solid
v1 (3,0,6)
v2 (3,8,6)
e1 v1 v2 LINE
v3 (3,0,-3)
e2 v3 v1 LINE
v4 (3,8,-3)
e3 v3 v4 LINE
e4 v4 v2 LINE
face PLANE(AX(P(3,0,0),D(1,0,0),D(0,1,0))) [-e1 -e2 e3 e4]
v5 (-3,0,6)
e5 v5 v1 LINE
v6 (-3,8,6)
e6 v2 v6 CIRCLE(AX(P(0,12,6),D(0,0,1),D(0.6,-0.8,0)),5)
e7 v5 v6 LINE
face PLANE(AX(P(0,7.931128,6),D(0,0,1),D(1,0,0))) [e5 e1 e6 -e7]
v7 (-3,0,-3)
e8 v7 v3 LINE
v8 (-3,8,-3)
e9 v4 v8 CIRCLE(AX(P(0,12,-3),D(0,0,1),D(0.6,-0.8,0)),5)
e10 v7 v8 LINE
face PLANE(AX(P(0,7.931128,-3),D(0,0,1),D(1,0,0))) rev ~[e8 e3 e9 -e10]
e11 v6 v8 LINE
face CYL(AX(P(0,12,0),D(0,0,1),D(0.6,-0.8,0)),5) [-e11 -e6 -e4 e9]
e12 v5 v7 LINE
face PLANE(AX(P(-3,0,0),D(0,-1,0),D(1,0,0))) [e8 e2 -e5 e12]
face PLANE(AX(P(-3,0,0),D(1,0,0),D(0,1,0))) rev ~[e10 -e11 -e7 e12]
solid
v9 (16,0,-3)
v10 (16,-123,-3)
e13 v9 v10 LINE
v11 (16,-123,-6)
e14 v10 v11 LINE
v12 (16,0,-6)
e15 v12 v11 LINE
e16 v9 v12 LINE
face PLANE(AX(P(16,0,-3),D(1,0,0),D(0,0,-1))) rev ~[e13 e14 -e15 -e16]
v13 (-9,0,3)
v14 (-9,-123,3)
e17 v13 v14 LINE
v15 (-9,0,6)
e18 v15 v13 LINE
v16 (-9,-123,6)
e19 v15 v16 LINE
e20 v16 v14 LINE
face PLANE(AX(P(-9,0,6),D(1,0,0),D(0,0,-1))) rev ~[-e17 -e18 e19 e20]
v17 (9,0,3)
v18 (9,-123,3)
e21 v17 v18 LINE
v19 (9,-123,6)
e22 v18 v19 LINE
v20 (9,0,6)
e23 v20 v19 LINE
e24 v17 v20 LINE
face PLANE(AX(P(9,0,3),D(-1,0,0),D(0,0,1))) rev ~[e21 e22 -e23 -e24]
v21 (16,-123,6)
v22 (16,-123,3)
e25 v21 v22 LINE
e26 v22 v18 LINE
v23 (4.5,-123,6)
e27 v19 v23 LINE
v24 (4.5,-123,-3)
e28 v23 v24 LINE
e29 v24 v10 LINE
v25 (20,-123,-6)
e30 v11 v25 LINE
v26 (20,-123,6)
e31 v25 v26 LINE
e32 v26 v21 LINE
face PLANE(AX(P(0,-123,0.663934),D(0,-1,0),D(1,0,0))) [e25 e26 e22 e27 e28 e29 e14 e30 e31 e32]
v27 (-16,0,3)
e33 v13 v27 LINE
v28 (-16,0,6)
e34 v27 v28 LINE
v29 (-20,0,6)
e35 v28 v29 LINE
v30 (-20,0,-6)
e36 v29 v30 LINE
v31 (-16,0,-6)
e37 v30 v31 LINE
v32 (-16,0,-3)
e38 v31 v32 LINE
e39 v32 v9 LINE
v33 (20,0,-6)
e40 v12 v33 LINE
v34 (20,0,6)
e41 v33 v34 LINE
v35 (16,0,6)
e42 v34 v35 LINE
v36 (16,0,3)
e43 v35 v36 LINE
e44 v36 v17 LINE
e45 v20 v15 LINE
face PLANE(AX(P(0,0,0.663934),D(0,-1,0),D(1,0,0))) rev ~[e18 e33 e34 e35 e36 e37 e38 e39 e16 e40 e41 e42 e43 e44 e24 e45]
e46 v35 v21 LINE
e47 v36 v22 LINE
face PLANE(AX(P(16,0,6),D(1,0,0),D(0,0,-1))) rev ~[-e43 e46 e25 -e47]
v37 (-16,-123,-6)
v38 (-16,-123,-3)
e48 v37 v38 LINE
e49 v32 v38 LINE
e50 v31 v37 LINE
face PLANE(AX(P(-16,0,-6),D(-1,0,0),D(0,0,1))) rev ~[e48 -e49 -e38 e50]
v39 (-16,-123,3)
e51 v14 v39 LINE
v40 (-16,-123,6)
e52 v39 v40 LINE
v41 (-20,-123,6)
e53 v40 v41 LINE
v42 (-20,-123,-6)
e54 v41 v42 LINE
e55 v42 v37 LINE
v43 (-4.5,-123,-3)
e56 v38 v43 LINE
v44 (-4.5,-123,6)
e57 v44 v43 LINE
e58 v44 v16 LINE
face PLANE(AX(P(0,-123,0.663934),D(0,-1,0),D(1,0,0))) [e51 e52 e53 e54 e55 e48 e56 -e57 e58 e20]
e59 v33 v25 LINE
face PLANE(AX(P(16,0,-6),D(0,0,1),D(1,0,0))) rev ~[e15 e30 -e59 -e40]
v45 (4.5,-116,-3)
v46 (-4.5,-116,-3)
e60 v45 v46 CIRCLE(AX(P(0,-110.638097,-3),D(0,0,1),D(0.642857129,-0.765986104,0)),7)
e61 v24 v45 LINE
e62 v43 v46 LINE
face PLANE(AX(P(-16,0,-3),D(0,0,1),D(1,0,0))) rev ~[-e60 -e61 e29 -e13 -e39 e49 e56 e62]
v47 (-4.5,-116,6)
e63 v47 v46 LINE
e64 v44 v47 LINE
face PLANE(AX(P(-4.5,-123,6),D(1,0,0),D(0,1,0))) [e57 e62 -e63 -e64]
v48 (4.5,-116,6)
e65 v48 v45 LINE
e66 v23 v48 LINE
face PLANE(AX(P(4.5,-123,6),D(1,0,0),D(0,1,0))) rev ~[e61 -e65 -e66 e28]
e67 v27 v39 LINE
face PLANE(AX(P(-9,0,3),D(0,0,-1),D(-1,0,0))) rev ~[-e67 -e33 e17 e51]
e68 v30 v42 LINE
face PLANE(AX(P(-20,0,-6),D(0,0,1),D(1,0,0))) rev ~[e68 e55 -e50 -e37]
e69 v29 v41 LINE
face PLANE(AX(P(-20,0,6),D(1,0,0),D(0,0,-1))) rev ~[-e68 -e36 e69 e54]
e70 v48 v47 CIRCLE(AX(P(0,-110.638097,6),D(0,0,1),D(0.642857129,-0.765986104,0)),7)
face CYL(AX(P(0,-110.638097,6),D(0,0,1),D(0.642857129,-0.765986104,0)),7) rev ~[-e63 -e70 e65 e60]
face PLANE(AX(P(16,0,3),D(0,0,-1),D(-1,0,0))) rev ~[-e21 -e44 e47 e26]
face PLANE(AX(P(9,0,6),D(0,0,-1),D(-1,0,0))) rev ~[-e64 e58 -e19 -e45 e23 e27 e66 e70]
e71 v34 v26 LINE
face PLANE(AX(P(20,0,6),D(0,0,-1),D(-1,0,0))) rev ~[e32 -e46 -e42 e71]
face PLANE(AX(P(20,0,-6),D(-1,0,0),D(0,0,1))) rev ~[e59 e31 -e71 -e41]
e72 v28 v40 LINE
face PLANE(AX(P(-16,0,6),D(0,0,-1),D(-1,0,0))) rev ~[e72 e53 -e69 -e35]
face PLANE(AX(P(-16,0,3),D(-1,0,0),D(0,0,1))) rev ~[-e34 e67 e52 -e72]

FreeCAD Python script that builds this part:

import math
import FreeCAD as App
import Part
import Sketcher


def add_polygon(sketch, points):
    """Adds a closed chain of lines whose ends are joined by coincident constraints."""
    first, n = sketch.GeometryCount, len(points)
    for a, b in zip(points, points[1:] + points[:1]):
        sketch.addGeometry(Part.LineSegment(App.Vector(*a, 0), App.Vector(*b, 0)), False)
    for i in range(n):
        sketch.addConstraint(Sketcher.Constraint("Coincident", first + i, 2, first + (i + 1) % n, 1))

doc = App.newDocument("Part")
body = doc.addObject("PartDesign::Body", "Body")

sketch1 = doc.addObject("Sketcher::SketchObject", "Sketch")
body.addObject(sketch1)
sketch1.AttachmentSupport = (doc.XZ_Plane, [""])
sketch1.MapMode = "FlatFace"
add_polygon(sketch1, [(-20, 6), (-20, -6), (-16, -6), (-16, -3), (16, -3), (16, -6), (20, -6), (20, 6), (16, 6), (16, 3), (9, 3), (9, 6), (-9, 6), (-9, 3), (-16, 3), (-16, 6)])
sketch1.addConstraint([
    Sketcher.Constraint("Vertical", 0),
    Sketcher.Constraint("Horizontal", 1),
    Sketcher.Constraint("Vertical", 2),
    Sketcher.Constraint("Horizontal", 3),
    Sketcher.Constraint("Vertical", 4),
    Sketcher.Constraint("Horizontal", 5),
    Sketcher.Constraint("Vertical", 6),
    Sketcher.Constraint("Horizontal", 7),
    Sketcher.Constraint("Vertical", 8),
    Sketcher.Constraint("Horizontal", 9),
    Sketcher.Constraint("Vertical", 10),
    Sketcher.Constraint("Horizontal", 11),
    Sketcher.Constraint("Vertical", 12),
    Sketcher.Constraint("Horizontal", 13),
    Sketcher.Constraint("Vertical", 14),
    Sketcher.Constraint("Horizontal", 15),
    Sketcher.Constraint("Symmetric", 0, 2, 6, 2, -1, 1),
    Sketcher.Constraint("Symmetric", 2, 2, 8, 2, -1, 1),
    Sketcher.Constraint("Symmetric", 3, 2, 13, 2, -1, 1),
    Sketcher.Constraint("Symmetric", 1, 2, 4, 2, -2),
    Sketcher.Constraint("Horizontal", 7, 2, 10, 2),
    Sketcher.Constraint("Horizontal", 11, 2, 14, 2),
    Sketcher.Constraint("Equal", 9, 13),
    Sketcher.Constraint("DistanceX", 1, 1, 1, 2, 4.0),
    Sketcher.Constraint("DistanceX", 3, 1, 3, 2, 32.0),
    Sketcher.Constraint("DistanceX", 9, 2, 9, 1, 7.0),
    Sketcher.Constraint("DistanceY", 0, 2, 0, 1, 12.0),
    Sketcher.Constraint("DistanceY", 2, 1, 2, 2, 3.0),
])
pad1 = doc.addObject("PartDesign::Pad", "Pad")
body.addObject(pad1)
pad1.Profile = sketch1
pad1.Length = 123

sketch2 = doc.addObject("Sketcher::SketchObject", "Sketch001")
body.addObject(sketch2)
sketch2.AttachmentSupport = (doc.XY_Plane, [""])
sketch2.MapMode = "FlatFace"
sketch2.AttachmentOffset = App.Placement(App.Vector(0, 0, 6), App.Rotation())
sketch2.addGeometry([
    Part.LineSegment(App.Vector(-4, -123, 0), App.Vector(4, -123, 0)),
    Part.LineSegment(App.Vector(4, -123, 0), App.Vector(4, -116, 0)),
    Part.ArcOfCircle(Part.Circle(App.Vector(0, -111, 0), App.Vector(0, 0, 1), 7), math.radians(-50), math.radians(230)),
    Part.LineSegment(App.Vector(-4, -116, 0), App.Vector(-4, -123, 0)),
], False)
sketch2.addConstraint([
    Sketcher.Constraint("Coincident", 0, 2, 1, 1),
    Sketcher.Constraint("Coincident", 1, 2, 2, 1),
    Sketcher.Constraint("Coincident", 2, 2, 3, 1),
    Sketcher.Constraint("Coincident", 3, 2, 0, 1),
    Sketcher.Constraint("Horizontal", 0),
    Sketcher.Constraint("Vertical", 1),
    Sketcher.Constraint("Vertical", 3),
    Sketcher.Constraint("Symmetric", 1, 2, 2, 2, -2),
    Sketcher.Constraint("Radius", 2, 7.0),
    Sketcher.Constraint("DistanceX", 0, 1, 0, 2, 9.0),
    Sketcher.Constraint("DistanceY", 1, 1, 1, 2, 7.0),
    Sketcher.Constraint("DistanceY", 0, 2, -1, 1, 123.0),
])
pocket1 = doc.addObject("PartDesign::Pocket", "Pocket")
body.addObject(pocket1)
pocket1.Profile = sketch2
pocket1.Type = "ThroughAll"
body2 = doc.addObject("PartDesign::Body", "Body001")

sketch3 = doc.addObject("Sketcher::SketchObject", "Sketch002")
body2.addObject(sketch3)
sketch3.AttachmentSupport = (doc.getObject("XY_Plane001"), [""])
sketch3.MapMode = "FlatFace"
sketch3.addGeometry([
    Part.LineSegment(App.Vector(-3, 0, 0), App.Vector(3, 0, 0)),
    Part.LineSegment(App.Vector(3, 0, 0), App.Vector(3, 8, 0)),
    Part.ArcOfCircle(Part.Circle(App.Vector(0, 12, 0), App.Vector(0, 0, 1), 5), math.radians(-53), math.radians(233)),
    Part.LineSegment(App.Vector(-3, 8, 0), App.Vector(-3, 0, 0)),
], False)
sketch3.addConstraint([
    Sketcher.Constraint("Coincident", 0, 2, 1, 1),
    Sketcher.Constraint("Coincident", 1, 2, 2, 1),
    Sketcher.Constraint("Coincident", 2, 2, 3, 1),
    Sketcher.Constraint("Coincident", 3, 2, 0, 1),
    Sketcher.Constraint("Horizontal", 0),
    Sketcher.Constraint("Vertical", 1),
    Sketcher.Constraint("Vertical", 3),
    Sketcher.Constraint("Symmetric", 0, 2, 3, 2, -1, 1),
    Sketcher.Constraint("PointOnObject", 2, 3, -2),
    Sketcher.Constraint("Radius", 2, 5.0),
    Sketcher.Constraint("DistanceX", 0, 1, 0, 2, 6.0),
    Sketcher.Constraint("DistanceY", 1, 1, 1, 2, 8.0),
])
pad2 = doc.addObject("PartDesign::Pad", "Pad001")
body2.addObject(pad2)
pad2.Profile = sketch3
pad2.Type = "TwoLengths"
pad2.Length = 6
pad2.Length2 = 3

doc.recompute()
